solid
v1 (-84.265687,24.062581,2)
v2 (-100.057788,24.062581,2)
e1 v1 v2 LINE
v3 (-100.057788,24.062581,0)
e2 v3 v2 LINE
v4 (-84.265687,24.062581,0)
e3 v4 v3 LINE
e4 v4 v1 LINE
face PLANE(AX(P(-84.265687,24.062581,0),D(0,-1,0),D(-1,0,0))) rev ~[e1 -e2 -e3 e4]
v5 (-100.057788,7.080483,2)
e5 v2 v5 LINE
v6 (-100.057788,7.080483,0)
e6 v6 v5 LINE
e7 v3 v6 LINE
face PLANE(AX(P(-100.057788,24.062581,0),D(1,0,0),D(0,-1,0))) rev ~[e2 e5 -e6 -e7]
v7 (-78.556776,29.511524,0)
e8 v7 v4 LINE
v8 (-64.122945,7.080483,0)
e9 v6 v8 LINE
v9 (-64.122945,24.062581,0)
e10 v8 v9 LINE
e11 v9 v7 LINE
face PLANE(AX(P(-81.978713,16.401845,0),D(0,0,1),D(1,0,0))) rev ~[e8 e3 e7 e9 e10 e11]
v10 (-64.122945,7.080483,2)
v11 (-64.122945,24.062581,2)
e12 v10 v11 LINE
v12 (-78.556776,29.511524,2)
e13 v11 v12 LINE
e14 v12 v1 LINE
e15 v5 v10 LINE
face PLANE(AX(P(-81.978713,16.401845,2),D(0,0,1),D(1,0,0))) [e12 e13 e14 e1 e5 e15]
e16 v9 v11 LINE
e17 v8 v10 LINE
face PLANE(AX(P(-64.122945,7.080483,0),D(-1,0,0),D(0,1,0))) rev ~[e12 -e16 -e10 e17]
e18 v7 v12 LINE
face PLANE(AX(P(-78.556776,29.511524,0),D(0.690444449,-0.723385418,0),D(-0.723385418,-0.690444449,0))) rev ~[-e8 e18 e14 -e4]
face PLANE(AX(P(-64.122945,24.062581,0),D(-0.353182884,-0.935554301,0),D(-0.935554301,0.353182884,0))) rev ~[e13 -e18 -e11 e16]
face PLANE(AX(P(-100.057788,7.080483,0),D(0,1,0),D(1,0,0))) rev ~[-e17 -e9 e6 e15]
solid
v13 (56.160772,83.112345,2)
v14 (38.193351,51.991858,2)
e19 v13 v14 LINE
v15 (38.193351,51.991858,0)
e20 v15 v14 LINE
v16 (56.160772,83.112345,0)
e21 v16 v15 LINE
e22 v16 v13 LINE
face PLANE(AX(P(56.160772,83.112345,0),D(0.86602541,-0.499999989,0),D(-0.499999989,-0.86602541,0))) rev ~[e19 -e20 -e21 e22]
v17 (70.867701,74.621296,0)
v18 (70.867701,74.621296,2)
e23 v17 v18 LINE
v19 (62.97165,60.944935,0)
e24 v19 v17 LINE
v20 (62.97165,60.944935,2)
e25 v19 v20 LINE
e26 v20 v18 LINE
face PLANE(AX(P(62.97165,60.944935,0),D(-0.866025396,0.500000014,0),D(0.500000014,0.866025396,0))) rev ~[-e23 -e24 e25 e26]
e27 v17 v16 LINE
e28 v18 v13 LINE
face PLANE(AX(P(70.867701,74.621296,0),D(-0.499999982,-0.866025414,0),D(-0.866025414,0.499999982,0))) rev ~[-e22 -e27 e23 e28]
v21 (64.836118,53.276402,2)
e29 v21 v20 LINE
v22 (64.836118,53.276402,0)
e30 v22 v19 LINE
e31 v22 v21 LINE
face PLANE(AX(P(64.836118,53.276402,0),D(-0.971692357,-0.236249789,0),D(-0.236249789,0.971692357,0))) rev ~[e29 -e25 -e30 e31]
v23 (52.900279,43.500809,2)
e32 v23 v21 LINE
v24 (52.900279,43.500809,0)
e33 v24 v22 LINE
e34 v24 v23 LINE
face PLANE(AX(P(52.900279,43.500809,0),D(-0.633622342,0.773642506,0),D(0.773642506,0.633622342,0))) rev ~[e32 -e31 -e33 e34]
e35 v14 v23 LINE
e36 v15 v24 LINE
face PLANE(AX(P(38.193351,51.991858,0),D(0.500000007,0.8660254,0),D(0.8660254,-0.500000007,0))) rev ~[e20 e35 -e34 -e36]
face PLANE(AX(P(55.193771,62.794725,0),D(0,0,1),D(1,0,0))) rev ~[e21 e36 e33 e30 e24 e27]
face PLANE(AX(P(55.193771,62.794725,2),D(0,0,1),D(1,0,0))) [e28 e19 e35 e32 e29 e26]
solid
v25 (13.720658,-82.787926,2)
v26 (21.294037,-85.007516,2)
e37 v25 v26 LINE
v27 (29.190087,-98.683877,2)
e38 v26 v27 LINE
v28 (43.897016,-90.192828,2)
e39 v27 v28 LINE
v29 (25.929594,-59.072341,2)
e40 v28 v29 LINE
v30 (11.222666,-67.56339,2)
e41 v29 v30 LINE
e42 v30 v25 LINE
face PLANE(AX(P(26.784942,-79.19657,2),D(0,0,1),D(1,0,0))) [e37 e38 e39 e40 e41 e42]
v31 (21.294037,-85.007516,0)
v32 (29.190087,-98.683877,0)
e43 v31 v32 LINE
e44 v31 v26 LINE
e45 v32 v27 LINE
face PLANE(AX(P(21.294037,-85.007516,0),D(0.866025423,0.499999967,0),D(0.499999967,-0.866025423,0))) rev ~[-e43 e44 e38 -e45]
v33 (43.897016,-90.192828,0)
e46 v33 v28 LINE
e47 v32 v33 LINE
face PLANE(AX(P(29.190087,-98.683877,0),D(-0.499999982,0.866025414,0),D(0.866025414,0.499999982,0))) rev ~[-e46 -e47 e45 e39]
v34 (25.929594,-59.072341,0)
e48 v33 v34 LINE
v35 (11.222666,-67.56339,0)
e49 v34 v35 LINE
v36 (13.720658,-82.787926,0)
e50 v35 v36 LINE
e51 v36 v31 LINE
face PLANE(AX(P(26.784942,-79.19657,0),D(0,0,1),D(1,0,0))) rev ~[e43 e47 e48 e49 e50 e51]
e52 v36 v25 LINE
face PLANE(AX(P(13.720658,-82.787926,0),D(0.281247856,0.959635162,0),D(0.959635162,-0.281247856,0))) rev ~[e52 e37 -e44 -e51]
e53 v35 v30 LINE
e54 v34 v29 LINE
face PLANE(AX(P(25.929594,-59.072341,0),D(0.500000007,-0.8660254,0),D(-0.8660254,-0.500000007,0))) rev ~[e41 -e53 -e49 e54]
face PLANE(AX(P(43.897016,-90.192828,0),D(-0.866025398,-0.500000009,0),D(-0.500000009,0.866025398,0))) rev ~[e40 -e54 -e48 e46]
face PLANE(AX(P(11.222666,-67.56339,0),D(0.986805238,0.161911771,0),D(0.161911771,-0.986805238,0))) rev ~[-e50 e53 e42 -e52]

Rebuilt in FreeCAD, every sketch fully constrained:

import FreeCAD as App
import Part
import Sketcher

V = App.Vector
Q = App.Units.Quantity

doc = App.newDocument("Part")
body = doc.addObject("PartDesign::Body", "Body")
body.AllowCompound = True

sketch1 = body.newObject("Sketcher::SketchObject", "Sketch")
sketch1.AttachmentSupport = (doc.getObject("XY_Plane"), [""])
sketch1.MapMode = "FlatFace"
sketch1.addGeometry(Part.LineSegment(V(-84, 24, 0), V(-100, 24, 0)), False)
sketch1.addGeometry(Part.LineSegment(V(-100, 24, 0), V(-100, 7, 0)), False)
sketch1.addGeometry(Part.LineSegment(V(-100, 7, 0), V(-64, 7, 0)), False)
sketch1.addGeometry(Part.LineSegment(V(-64, 7, 0), V(-64, 24, 0)), False)
sketch1.addGeometry(Part.LineSegment(V(-64, 24, 0), V(-79, 30, 0)), False)
sketch1.addGeometry(Part.LineSegment(V(-79, 30, 0), V(-84, 24, 0)), False)
sketch1.addGeometry(Part.LineSegment(V(44, -90, 0), V(26, -59, 0)), False)
sketch1.addGeometry(Part.LineSegment(V(26, -59, 0), V(11, -68, 0)), False)
sketch1.addGeometry(Part.LineSegment(V(11, -68, 0), V(14, -83, 0)), False)
sketch1.addGeometry(Part.LineSegment(V(14, -83, 0), V(21, -85, 0)), False)
sketch1.addGeometry(Part.LineSegment(V(21, -85, 0), V(29, -99, 0)), False)
sketch1.addGeometry(Part.LineSegment(V(29, -99, 0), V(44, -90, 0)), False)
sketch1.addGeometry(Part.LineSegment(V(56, 83, 0), V(38, 52, 0)), False)
sketch1.addGeometry(Part.LineSegment(V(38, 52, 0), V(53, 44, 0)), False)
sketch1.addGeometry(Part.LineSegment(V(53, 44, 0), V(65, 53, 0)), False)
sketch1.addGeometry(Part.LineSegment(V(65, 53, 0), V(63, 61, 0)), False)
sketch1.addGeometry(Part.LineSegment(V(63, 61, 0), V(71, 75, 0)), False)
sketch1.addGeometry(Part.LineSegment(V(71, 75, 0), V(56, 83, 0)), False)
sketch1.addConstraint(Sketcher.Constraint("Coincident", 0, 2, 1, 1))
sketch1.addConstraint(Sketcher.Constraint("Coincident", 1, 2, 2, 1))
sketch1.addConstraint(Sketcher.Constraint("Coincident", 2, 2, 3, 1))
sketch1.addConstraint(Sketcher.Constraint("Coincident", 3, 2, 4, 1))
sketch1.addConstraint(Sketcher.Constraint("Coincident", 4, 2, 5, 1))
sketch1.addConstraint(Sketcher.Constraint("Coincident", 5, 2, 0, 1))
sketch1.addConstraint(Sketcher.Constraint("Coincident", 6, 2, 7, 1))
sketch1.addConstraint(Sketcher.Constraint("Coincident", 7, 2, 8, 1))
sketch1.addConstraint(Sketcher.Constraint("Coincident", 8, 2, 9, 1))
sketch1.addConstraint(Sketcher.Constraint("Coincident", 9, 2, 10, 1))
sketch1.addConstraint(Sketcher.Constraint("Coincident", 10, 2, 11, 1))
sketch1.addConstraint(Sketcher.Constraint("Coincident", 11, 2, 6, 1))
sketch1.addConstraint(Sketcher.Constraint("Coincident", 12, 2, 13, 1))
sketch1.addConstraint(Sketcher.Constraint("Coincident", 13, 2, 14, 1))
sketch1.addConstraint(Sketcher.Constraint("Coincident", 14, 2, 15, 1))
sketch1.addConstraint(Sketcher.Constraint("Coincident", 15, 2, 16, 1))
sketch1.addConstraint(Sketcher.Constraint("Coincident", 16, 2, 17, 1))
sketch1.addConstraint(Sketcher.Constraint("Coincident", 17, 2, 12, 1))
sketch1.addConstraint(Sketcher.Constraint("Horizontal", 0))
sketch1.addConstraint(Sketcher.Constraint("Vertical", 1))
sketch1.addConstraint(Sketcher.Constraint("Horizontal", 2))
sketch1.addConstraint(Sketcher.Constraint("Vertical", 3))
sketch1.addConstraint(Sketcher.Constraint("Perpendicular", 6, 7))
sketch1.addConstraint(Sketcher.Constraint("Perpendicular", 7, 10))
sketch1.addConstraint(Sketcher.Constraint("Perpendicular", 10, 11))
sketch1.addConstraint(Sketcher.Constraint("Perpendicular", 12, 13))
sketch1.addConstraint(Sketcher.Constraint("Perpendicular", 13, 16))
sketch1.addConstraint(Sketcher.Constraint("Perpendicular", 16, 17))
sketch1.addConstraint(Sketcher.Constraint("Horizontal", 0, 2, 3, 2))
sketch1.addConstraint(Sketcher.Constraint("Equal", 4, 8))
sketch1.addConstraint(Sketcher.Constraint("Equal", 5, 9))
sketch1.addConstraint(Sketcher.Constraint("Equal", 7, 11))
sketch1.addConstraint(Sketcher.Constraint("Equal", 6, 12))
sketch1.addConstraint(Sketcher.Constraint("Equal", 11, 13))
sketch1.addConstraint(Sketcher.Constraint("Equal", 8, 14))
sketch1.addConstraint(Sketcher.Constraint("Equal", 9, 15))
sketch1.addConstraint(Sketcher.Constraint("Equal", 10, 16))
sketch1.addConstraint(Sketcher.Constraint("Equal", 13, 17))
sketch1.addConstraint(Sketcher.Constraint("Angle", 6, Q("120.000001 deg")))
sketch1.addConstraint(Sketcher.Constraint("Angle", 12, Q("-119.999999 deg")))
sketch1.addConstraint(Sketcher.Constraint("DistanceX", 0, 2, 0, 1, 15.792101))
sketch1.addConstraint(Sketcher.Constraint("DistanceY", 1, 2, 1, 1, 16.982098))
sketch1.addConstraint(Sketcher.Constraint("DistanceY", 9, 2, 2, 2, 92.087999))
sketch1.addConstraint(Sketcher.Constraint("Distance", 10, 15.792101))
sketch1.addConstraint(Sketcher.Constraint("Distance", 11, 16.982099))
sketch1.addConstraint(Sketcher.Constraint("DistanceY", -1, 1, 14, 2, 53.276402))
sketch1.addConstraint(Sketcher.Constraint("DistanceX", -1, 1, 16, 2, 70.867701))
sketch1.addConstraint(Sketcher.Constraint("DistanceY", 6, 2, 12, 2, 111.064199))
sketch1.addConstraint(Sketcher.Constraint("DistanceX", 12, 2, 15, 2, 24.778299))
sketch1.addConstraint(Sketcher.Constraint("DistanceX", 2, 1, 2, 2, 35.934843))
sketch1.addConstraint(Sketcher.Constraint("DistanceX", 0, 2, -1, 1, 100.057788))
sketch1.addConstraint(Sketcher.Constraint("DistanceY", -1, 1, 0, 2, 24.062581))
sketch1.addConstraint(Sketcher.Constraint("DistanceX", -1, 1, 14, 2, 64.836118))
sketch1.addConstraint(Sketcher.Constraint("DistanceX", 2, 2, 6, 2, 90.052539))
pad1 = body.newObject("PartDesign::Pad", "Pad")
pad1.Profile = sketch1
pad1.Length = 2

doc.recompute()
